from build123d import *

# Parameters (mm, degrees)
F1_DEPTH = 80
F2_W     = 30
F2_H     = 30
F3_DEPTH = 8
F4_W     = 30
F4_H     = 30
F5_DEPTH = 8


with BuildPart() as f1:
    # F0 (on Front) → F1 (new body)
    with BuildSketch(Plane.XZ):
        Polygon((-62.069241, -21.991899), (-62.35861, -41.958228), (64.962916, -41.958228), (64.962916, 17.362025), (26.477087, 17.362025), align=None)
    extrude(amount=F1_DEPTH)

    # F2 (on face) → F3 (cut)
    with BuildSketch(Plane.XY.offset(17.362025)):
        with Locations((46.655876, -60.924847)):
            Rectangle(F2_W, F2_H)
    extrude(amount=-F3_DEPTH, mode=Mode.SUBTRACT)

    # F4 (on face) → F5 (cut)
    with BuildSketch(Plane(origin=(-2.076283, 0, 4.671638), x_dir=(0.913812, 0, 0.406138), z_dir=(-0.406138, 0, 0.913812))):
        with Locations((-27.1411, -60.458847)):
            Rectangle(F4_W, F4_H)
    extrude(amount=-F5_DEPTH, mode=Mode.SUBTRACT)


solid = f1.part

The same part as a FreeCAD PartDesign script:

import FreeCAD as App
import Part
import Sketcher
from FreeCAD import Vector

doc = App.newDocument("Part")
body = doc.addObject("PartDesign::Body", "Body")

sketch1 = body.newObject("Sketcher::SketchObject", "Sketch")
sketch1.AttachmentSupport = (doc.getObject("XZ_Plane"), [""])
sketch1.MapMode = "FlatFace"
sketch1.addGeometry(Part.LineSegment(Vector(-62.069241, -21.991899, 0), Vector(-62.35861, -41.958228, 0)), False)
sketch1.addGeometry(Part.LineSegment(Vector(-62.35861, -41.958228, 0), Vector(64.962916, -41.958228, 0)), False)
sketch1.addGeometry(Part.LineSegment(Vector(64.962916, -41.958228, 0), Vector(64.962916, 17.362025, 0)), False)
sketch1.addGeometry(Part.LineSegment(Vector(64.962916, 17.362025, 0), Vector(26.477087, 17.362025, 0)), False)
sketch1.addGeometry(Part.LineSegment(Vector(26.477087, 17.362025, 0), Vector(-62.069241, -21.991899, 0)), False)
sketch1.addConstraint(Sketcher.Constraint("Coincident", 0, 2, 1, 1))
sketch1.addConstraint(Sketcher.Constraint("Coincident", 1, 2, 2, 1))
sketch1.addConstraint(Sketcher.Constraint("Coincident", 2, 2, 3, 1))
sketch1.addConstraint(Sketcher.Constraint("Coincident", 3, 2, 4, 1))
sketch1.addConstraint(Sketcher.Constraint("Coincident", 4, 2, 0, 1))
sketch1.addConstraint(Sketcher.Constraint("Horizontal", 1))
sketch1.addConstraint(Sketcher.Constraint("Vertical", 2))
sketch1.addConstraint(Sketcher.Constraint("Horizontal", 3))
sketch1.addConstraint(Sketcher.Constraint("Distance", 4, 96.897799))
sketch1.addConstraint(Sketcher.Constraint("DistanceX", 3, 2, 3, 1, 38.485829))
sketch1.addConstraint(Sketcher.Constraint("DistanceY", 4, 2, -1, 1, 21.991899))
sketch1.addConstraint(Sketcher.Constraint("DistanceX", 1, 1, 1, 2, 127.321526))
sketch1.addConstraint(Sketcher.Constraint("DistanceY", 2, 1, 2, 2, 59.320253))
sketch1.addConstraint(Sketcher.Constraint("DistanceX", 0, 2, -1, 1, 62.35861))
sketch1.addConstraint(Sketcher.Constraint("DistanceX", 4, 2, -1, 1, 62.069241))
pad1 = body.newObject("PartDesign::Pad", "Pad")
pad1.Profile = sketch1
pad1.Length = 80

sketch2 = body.newObject("Sketcher::SketchObject", "Sketch001")
sketch2.AttachmentSupport = (doc.getObject("XY_Plane"), [""])
sketch2.MapMode = "FlatFace"
sketch2.AttachmentOffset = App.Placement(Vector(0, 0, 17.362025), App.Rotation())
sketch2.addGeometry(Part.LineSegment(Vector(31.655876, -45.924847, 0), Vector(31.655876, -75.924847, 0)), False)
sketch2.addGeometry(Part.LineSegment(Vector(31.655876, -75.924847, 0), Vector(61.655876, -75.924847, 0)), False)
sketch2.addGeometry(Part.LineSegment(Vector(61.655876, -75.924847, 0), Vector(61.655876, -45.924847, 0)), False)
sketch2.addGeometry(Part.LineSegment(Vector(61.655876, -45.924847, 0), Vector(31.655876, -45.924847, 0)), False)
sketch2.addConstraint(Sketcher.Constraint("Coincident", 0, 2, 1, 1))
sketch2.addConstraint(Sketcher.Constraint("Coincident", 1, 2, 2, 1))
sketch2.addConstraint(Sketcher.Constraint("Coincident", 2, 2, 3, 1))
sketch2.addConstraint(Sketcher.Constraint("Coincident", 3, 2, 0, 1))
sketch2.addConstraint(Sketcher.Constraint("Vertical", 0))
sketch2.addConstraint(Sketcher.Constraint("Horizontal", 1))
sketch2.addConstraint(Sketcher.Constraint("Vertical", 2))
sketch2.addConstraint(Sketcher.Constraint("Horizontal", 3))
sketch2.addConstraint(Sketcher.Constraint("Equal", 3, 0))
sketch2.addConstraint(Sketcher.Constraint("DistanceX", 1, 1, 1, 2, 30.0))
sketch2.addConstraint(Sketcher.Constraint("DistanceX", -1, 1, 0, 2, 31.655876))
sketch2.addConstraint(Sketcher.Constraint("DistanceY", 0, 2, -1, 1, 75.924847))
pocket1 = body.newObject("PartDesign::Pocket", "Pocket")
pocket1.Profile = sketch2
pocket1.Length = 8

sketch3 = body.newObject("Sketcher::SketchObject", "Sketch002")
sketch3.Placement = App.Placement(Vector(-2.076283, 0, 4.671638), App.Rotation(Vector(0.913811796, 0, 0.406137909), Vector(0, 1, 0), Vector(-0.406137909, 0, 0.913811796), "ZXY"))
sketch3.addGeometry(Part.LineSegment(Vector(-42.1411, -45.458847, 0), Vector(-42.1411, -75.458847, 0)), False)
sketch3.addGeometry(Part.LineSegment(Vector(-42.1411, -75.458847, 0), Vector(-12.1411, -75.458847, 0)), False)
sketch3.addGeometry(Part.LineSegment(Vector(-12.1411, -75.458847, 0), Vector(-12.1411, -45.458847, 0)), False)
sketch3.addGeometry(Part.LineSegment(Vector(-12.1411, -45.458847, 0), Vector(-42.1411, -45.458847, 0)), False)
sketch3.addConstraint(Sketcher.Constraint("Coincident", 0, 2, 1, 1))
sketch3.addConstraint(Sketcher.Constraint("Coincident", 1, 2, 2, 1))
sketch3.addConstraint(Sketcher.Constraint("Coincident", 2, 2, 3, 1))
sketch3.addConstraint(Sketcher.Constraint("Coincident", 3, 2, 0, 1))
sketch3.addConstraint(Sketcher.Constraint("Vertical", 0))
sketch3.addConstraint(Sketcher.Constraint("Horizontal", 1))
sketch3.addConstraint(Sketcher.Constraint("Vertical", 2))
sketch3.addConstraint(Sketcher.Constraint("Horizontal", 3))
sketch3.addConstraint(Sketcher.Constraint("Equal", 3, 0))
sketch3.addConstraint(Sketcher.Constraint("DistanceX", 1, 1, 1, 2, 30.0))
sketch3.addConstraint(Sketcher.Constraint("DistanceX", 0, 2, -1, 1, 42.1411))
sketch3.addConstraint(Sketcher.Constraint("DistanceY", 0, 2, -1, 1, 75.458847))
pocket2 = body.newObject("PartDesign::Pocket", "Pocket001")
pocket2.Profile = sketch3
pocket2.Length = 8

doc.recompute()
